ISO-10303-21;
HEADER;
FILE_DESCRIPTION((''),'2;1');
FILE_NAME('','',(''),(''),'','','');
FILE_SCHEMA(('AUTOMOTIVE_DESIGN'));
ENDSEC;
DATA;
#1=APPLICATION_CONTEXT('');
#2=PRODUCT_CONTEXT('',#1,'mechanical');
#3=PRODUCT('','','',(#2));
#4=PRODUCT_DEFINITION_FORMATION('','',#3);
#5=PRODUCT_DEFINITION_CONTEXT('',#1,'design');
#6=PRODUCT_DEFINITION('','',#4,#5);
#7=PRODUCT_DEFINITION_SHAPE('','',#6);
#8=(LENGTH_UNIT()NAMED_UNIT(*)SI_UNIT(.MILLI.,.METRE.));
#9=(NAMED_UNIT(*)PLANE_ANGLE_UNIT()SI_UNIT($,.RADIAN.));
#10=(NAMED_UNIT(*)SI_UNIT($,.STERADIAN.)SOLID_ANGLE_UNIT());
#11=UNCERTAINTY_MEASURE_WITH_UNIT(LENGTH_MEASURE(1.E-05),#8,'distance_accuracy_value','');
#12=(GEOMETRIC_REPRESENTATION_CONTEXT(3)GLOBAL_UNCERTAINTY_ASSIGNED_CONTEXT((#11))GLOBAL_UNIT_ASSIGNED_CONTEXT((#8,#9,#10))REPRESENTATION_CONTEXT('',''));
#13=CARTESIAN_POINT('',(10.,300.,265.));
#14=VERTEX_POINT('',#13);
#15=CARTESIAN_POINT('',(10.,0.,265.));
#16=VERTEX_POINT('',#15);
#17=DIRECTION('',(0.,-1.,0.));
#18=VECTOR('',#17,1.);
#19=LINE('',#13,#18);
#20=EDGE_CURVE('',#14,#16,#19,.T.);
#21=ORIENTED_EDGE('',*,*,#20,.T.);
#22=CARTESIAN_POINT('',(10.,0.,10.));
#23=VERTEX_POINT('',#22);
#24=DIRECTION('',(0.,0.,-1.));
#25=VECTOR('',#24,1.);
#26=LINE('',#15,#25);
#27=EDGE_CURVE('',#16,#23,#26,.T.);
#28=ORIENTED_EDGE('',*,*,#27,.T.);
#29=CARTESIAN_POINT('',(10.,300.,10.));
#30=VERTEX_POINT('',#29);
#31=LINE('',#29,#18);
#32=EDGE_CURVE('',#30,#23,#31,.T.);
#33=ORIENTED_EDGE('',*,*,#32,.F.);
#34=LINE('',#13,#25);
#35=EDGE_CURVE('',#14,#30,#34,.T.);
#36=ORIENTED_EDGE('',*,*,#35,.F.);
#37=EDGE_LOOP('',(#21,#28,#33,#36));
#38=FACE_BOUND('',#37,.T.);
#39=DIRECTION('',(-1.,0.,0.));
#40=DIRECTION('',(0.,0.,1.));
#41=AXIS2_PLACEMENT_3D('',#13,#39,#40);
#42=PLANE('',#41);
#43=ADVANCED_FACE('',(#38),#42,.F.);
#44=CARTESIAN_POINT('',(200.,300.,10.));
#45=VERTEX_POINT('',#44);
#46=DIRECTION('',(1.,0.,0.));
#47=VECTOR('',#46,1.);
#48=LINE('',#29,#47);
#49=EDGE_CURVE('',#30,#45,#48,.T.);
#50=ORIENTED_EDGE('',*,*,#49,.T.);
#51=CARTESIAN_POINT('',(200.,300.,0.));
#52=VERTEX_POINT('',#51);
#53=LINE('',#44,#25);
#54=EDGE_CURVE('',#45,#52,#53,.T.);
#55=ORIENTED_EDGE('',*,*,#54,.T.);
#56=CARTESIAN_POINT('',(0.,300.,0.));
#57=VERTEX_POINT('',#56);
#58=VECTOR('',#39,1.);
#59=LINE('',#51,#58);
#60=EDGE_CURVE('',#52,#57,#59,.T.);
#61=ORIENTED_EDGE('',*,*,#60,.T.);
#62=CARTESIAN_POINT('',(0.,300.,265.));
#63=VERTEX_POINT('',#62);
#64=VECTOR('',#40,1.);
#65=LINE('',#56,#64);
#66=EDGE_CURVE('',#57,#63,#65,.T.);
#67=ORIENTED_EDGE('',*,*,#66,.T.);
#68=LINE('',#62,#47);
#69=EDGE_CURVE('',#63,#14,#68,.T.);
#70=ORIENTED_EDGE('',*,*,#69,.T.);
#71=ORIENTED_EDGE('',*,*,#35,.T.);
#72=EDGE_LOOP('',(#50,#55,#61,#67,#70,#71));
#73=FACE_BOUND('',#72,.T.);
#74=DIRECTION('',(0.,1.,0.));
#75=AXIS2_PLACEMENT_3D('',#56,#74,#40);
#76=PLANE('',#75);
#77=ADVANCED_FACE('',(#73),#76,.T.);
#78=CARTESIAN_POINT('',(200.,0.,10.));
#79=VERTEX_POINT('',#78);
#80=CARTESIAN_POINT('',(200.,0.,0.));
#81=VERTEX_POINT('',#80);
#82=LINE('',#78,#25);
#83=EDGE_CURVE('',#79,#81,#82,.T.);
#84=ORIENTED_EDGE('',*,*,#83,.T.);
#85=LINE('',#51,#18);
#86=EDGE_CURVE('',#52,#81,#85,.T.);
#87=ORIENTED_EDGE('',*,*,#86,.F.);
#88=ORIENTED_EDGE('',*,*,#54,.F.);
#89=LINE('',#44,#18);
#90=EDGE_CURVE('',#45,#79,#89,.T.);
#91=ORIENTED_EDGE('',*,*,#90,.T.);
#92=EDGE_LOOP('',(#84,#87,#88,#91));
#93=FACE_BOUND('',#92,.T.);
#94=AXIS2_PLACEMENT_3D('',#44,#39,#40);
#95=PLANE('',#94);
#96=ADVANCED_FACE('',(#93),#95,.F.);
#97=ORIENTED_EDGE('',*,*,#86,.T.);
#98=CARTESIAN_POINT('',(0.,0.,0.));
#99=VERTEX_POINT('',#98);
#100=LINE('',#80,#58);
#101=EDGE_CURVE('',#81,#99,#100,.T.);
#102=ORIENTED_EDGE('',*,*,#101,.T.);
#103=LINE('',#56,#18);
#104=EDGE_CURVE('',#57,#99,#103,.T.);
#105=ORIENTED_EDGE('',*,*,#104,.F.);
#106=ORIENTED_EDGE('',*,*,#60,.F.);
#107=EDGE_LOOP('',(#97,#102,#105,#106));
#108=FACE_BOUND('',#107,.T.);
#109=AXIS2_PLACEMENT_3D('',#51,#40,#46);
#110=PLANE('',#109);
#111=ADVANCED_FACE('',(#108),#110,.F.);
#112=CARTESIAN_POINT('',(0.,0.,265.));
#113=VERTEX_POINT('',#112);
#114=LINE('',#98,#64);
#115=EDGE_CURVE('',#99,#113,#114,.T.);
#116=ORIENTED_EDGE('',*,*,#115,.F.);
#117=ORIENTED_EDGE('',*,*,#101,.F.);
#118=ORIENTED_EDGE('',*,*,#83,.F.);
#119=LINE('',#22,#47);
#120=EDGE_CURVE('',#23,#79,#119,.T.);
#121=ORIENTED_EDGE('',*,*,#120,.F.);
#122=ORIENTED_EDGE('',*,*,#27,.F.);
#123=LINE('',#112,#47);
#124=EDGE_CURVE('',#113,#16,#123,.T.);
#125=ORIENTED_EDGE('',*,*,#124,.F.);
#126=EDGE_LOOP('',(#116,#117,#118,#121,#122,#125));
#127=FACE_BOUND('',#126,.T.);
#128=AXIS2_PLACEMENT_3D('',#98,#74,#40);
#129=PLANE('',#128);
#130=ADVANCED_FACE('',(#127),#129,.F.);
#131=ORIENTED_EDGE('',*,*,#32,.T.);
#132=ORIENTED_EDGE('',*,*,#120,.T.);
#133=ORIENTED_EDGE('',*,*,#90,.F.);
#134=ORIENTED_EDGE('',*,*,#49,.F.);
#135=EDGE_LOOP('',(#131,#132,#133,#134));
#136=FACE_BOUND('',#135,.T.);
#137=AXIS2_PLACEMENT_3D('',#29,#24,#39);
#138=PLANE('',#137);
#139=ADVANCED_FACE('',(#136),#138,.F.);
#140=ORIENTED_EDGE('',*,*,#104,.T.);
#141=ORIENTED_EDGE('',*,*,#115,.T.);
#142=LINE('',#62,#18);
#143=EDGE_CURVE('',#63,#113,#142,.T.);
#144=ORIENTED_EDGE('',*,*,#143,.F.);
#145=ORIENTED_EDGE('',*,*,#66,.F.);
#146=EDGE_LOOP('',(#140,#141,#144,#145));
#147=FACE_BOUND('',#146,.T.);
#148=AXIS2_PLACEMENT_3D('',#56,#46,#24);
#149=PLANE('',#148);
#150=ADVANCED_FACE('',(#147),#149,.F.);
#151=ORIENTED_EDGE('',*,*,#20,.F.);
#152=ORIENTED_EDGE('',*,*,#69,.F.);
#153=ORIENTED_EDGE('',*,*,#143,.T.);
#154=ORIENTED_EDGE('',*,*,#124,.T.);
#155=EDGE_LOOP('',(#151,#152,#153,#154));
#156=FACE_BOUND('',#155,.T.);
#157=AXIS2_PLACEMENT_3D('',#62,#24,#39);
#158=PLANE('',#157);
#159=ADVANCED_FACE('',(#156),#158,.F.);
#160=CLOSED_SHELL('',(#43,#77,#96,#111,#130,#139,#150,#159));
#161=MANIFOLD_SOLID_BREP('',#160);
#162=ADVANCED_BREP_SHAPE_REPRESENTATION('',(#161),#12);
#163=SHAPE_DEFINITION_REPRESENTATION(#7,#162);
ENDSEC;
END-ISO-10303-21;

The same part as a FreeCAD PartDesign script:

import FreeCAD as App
import Part
import Sketcher

V = App.Vector

doc = App.newDocument("Part")
body = doc.addObject("PartDesign::Body", "Body")

# Sketch on XZ plane
sketch1 = body.newObject("Sketcher::SketchObject", "Sketch")
sketch1.AttachmentSupport = (doc.getObject("XZ_Plane"), [""])
sketch1.MapMode = "FlatFace"
sketch1.addGeometry(Part.LineSegment(V(0, 0, 0), V(0, 265, 0)), False)
sketch1.addGeometry(Part.LineSegment(V(0, 265, 0), V(10, 265, 0)), False)
sketch1.addGeometry(Part.LineSegment(V(10, 265, 0), V(10, 10, 0)), False)
sketch1.addGeometry(Part.LineSegment(V(10, 10, 0), V(200, 10, 0)), False)
sketch1.addGeometry(Part.LineSegment(V(200, 10, 0), V(200, 0, 0)), False)
sketch1.addGeometry(Part.LineSegment(V(200, 0, 0), V(0, 0, 0)), False)
sketch1.addConstraint(Sketcher.Constraint("Coincident", 0, 2, 1, 1))
sketch1.addConstraint(Sketcher.Constraint("Coincident", 1, 2, 2, 1))
sketch1.addConstraint(Sketcher.Constraint("Coincident", 2, 2, 3, 1))
sketch1.addConstraint(Sketcher.Constraint("Coincident", 3, 2, 4, 1))
sketch1.addConstraint(Sketcher.Constraint("Coincident", 4, 2, 5, 1))
sketch1.addConstraint(Sketcher.Constraint("Coincident", 5, 2, 0, 1))
sketch1.addConstraint(Sketcher.Constraint("Vertical", 0))
sketch1.addConstraint(Sketcher.Constraint("Horizontal", 1))
sketch1.addConstraint(Sketcher.Constraint("Vertical", 2))
sketch1.addConstraint(Sketcher.Constraint("Horizontal", 3))
sketch1.addConstraint(Sketcher.Constraint("Vertical", 4))
sketch1.addConstraint(Sketcher.Constraint("Horizontal", 5))
sketch1.addConstraint(Sketcher.Constraint("Coincident", 5, 2, -1, 1))
sketch1.addConstraint(Sketcher.Constraint("Equal", 1, 4))
sketch1.addConstraint(Sketcher.Constraint("DistanceX", 1, 1, 1, 2, 10.0))
sketch1.addConstraint(Sketcher.Constraint("DistanceX", 3, 1, 3, 2, 190.0))
sketch1.addConstraint(Sketcher.Constraint("DistanceY", 0, 1, 0, 2, 265.0))
pad1 = body.newObject("PartDesign::Pad", "Pad")
pad1.Profile = sketch1
pad1.Length = 300
pad1.Reversed = True

doc.recompute()
